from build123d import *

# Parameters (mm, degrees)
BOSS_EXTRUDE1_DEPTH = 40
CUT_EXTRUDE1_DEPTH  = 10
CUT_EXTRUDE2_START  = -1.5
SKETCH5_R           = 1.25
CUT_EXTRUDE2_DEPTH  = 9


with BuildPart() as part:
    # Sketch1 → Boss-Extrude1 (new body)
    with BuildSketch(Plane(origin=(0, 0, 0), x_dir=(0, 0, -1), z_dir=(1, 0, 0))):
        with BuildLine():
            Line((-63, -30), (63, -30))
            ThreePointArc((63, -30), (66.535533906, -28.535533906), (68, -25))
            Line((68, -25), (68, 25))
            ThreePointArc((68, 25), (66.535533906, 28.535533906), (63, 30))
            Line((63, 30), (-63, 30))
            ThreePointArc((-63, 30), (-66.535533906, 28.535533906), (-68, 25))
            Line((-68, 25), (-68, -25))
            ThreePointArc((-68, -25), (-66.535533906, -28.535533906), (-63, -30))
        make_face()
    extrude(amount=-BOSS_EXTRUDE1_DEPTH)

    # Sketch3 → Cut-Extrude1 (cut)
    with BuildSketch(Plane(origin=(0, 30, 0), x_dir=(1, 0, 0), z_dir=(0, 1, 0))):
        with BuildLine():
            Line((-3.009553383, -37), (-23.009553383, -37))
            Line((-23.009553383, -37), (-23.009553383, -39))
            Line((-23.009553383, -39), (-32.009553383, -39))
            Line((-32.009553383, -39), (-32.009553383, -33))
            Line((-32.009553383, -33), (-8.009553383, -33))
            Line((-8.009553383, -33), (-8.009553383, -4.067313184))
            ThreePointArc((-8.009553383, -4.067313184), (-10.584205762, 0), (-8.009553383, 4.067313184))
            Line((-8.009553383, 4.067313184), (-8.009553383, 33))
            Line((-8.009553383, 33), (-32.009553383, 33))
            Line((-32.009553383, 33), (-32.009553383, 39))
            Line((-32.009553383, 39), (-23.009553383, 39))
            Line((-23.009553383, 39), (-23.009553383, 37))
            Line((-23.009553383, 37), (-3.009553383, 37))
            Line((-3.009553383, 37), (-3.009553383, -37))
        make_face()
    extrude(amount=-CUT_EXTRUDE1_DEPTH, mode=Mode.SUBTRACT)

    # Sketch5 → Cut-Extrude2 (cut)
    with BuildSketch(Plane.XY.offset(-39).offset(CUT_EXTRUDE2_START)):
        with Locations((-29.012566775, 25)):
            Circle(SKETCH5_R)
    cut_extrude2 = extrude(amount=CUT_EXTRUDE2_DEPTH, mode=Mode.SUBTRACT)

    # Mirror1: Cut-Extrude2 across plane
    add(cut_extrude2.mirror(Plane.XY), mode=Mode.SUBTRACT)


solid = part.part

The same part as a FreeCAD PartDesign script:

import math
import FreeCAD as App
import Part
import Sketcher
from FreeCAD import Vector

doc = App.newDocument("Part")
params = doc.addObject("Spreadsheet::Sheet", "Params")
for row, (alias, value) in enumerate([
    ("sketch1_radius", "5 mm"),
    ("sketch1_width", "50 mm"),
    ("sketch1_height", "126 mm"),
    ("pad1_length", "40 mm"),
    ("sketch2_radius", "4.5 mm"),
    ("sketch2_width", "20 mm"),
    ("sketch2_width2", "9 mm"),
    ("sketch2_width3", "24 mm"),
    ("sketch2_height", "74 mm"),
    ("pocket1_length", "10 mm"),
    ("sketch3_diameter", "2.5 mm"),
    ("pocket2_length", "9 mm"),
], start=1):
    params.set(f"A{row}", alias)
    params.set(f"B{row}", "=" + value)
    params.setAlias(f"B{row}", alias)

body = doc.addObject("PartDesign::Body", "Body")

# Sketch on YZ plane
sketch1 = body.newObject("Sketcher::SketchObject", "Sketch")
sketch1.AttachmentSupport = (doc.getObject("YZ_Plane"), [""])
sketch1.MapMode = "FlatFace"
sketch1.addGeometry(Part.LineSegment(Vector(-30, 63, 0), Vector(-30, -63, 0)), False)
sketch1.addGeometry(Part.ArcOfCircle(Part.Circle(Vector(-25, -63, 0), Vector(0, 0, 1), 5), math.radians(180), math.radians(270)), False)
sketch1.addGeometry(Part.LineSegment(Vector(-25, -68, 0), Vector(25, -68, 0)), False)
sketch1.addGeometry(Part.ArcOfCircle(Part.Circle(Vector(25, -63, 0), Vector(0, 0, 1), 5), math.radians(-90), math.radians(0)), False)
sketch1.addGeometry(Part.LineSegment(Vector(30, -63, 0), Vector(30, 63, 0)), False)
sketch1.addGeometry(Part.ArcOfCircle(Part.Circle(Vector(25, 63, 0), Vector(0, 0, 1), 5), math.radians(0), math.radians(90)), False)
sketch1.addGeometry(Part.LineSegment(Vector(25, 68, 0), Vector(-25, 68, 0)), False)
sketch1.addGeometry(Part.ArcOfCircle(Part.Circle(Vector(-25, 63, 0), Vector(0, 0, 1), 5), math.radians(90), math.radians(180)), False)
sketch1.addConstraint(Sketcher.Constraint("Tangent", 0, 2, 1, 1))
sketch1.addConstraint(Sketcher.Constraint("Tangent", 1, 2, 2, 1))
sketch1.addConstraint(Sketcher.Constraint("Tangent", 2, 2, 3, 1))
sketch1.addConstraint(Sketcher.Constraint("Tangent", 3, 2, 4, 1))
sketch1.addConstraint(Sketcher.Constraint("Tangent", 4, 2, 5, 1))
sketch1.addConstraint(Sketcher.Constraint("Tangent", 5, 2, 6, 1))
sketch1.addConstraint(Sketcher.Constraint("Tangent", 6, 2, 7, 1))
sketch1.addConstraint(Sketcher.Constraint("Tangent", 7, 2, 0, 1))
sketch1.addConstraint(Sketcher.Constraint("Vertical", 0))
sketch1.addConstraint(Sketcher.Constraint("Horizontal", 2))
sketch1.addConstraint(Sketcher.Constraint("Vertical", 4))
sketch1.addConstraint(Sketcher.Constraint("Horizontal", 6))
sketch1.addConstraint(Sketcher.Constraint("Equal", 1, 3))
sketch1.addConstraint(Sketcher.Constraint("Equal", 3, 5))
sketch1.addConstraint(Sketcher.Constraint("Equal", 5, 7))
sketch1.addConstraint(Sketcher.Constraint("Symmetric", 1, 3, 5, 3, -1, 1))
sketch1.addConstraint(Sketcher.Constraint("Radius", 1, 5.0))
sketch1.addConstraint(Sketcher.Constraint("DistanceX", 2, 1, 2, 2, 50.0))
sketch1.addConstraint(Sketcher.Constraint("DistanceY", 0, 2, 0, 1, 126.0))
sketch1.setExpression("Constraints[16]", "Params.sketch1_radius")
sketch1.setExpression("Constraints[17]", "Params.sketch1_width")
sketch1.setExpression("Constraints[18]", "Params.sketch1_height")
pad1 = body.newObject("PartDesign::Pad", "Pad")
pad1.Profile = sketch1
pad1.setExpression("Length", "Params.pad1_length")
pad1.Reversed = True

# Sketch on XZ plane
sketch2 = body.newObject("Sketcher::SketchObject", "Sketch001")
sketch2.AttachmentSupport = (doc.getObject("XZ_Plane"), [""])
sketch2.MapMode = "FlatFace"
sketch2.AttachmentOffset = App.Placement(Vector(0, 0, -30), App.Rotation())
sketch2.addGeometry(Part.LineSegment(Vector(-23.009553, 37, 0), Vector(-3.009553, 37, 0)), False)
sketch2.addGeometry(Part.LineSegment(Vector(-3.009553, 37, 0), Vector(-3.009553, -37, 0)), False)
sketch2.addGeometry(Part.LineSegment(Vector(-3.009553, -37, 0), Vector(-23.009553, -37, 0)), False)
sketch2.addGeometry(Part.LineSegment(Vector(-23.009553, -37, 0), Vector(-23.009553, -39, 0)), False)
sketch2.addGeometry(Part.LineSegment(Vector(-23.009553, -39, 0), Vector(-32.009553, -39, 0)), False)
sketch2.addGeometry(Part.LineSegment(Vector(-32.009553, -39, 0), Vector(-32.009553, -33, 0)), False)
sketch2.addGeometry(Part.LineSegment(Vector(-32.009553, -33, 0), Vector(-8.009553, -33, 0)), False)
sketch2.addGeometry(Part.LineSegment(Vector(-8.009553, -33, 0), Vector(-8.009553, -4.067313, 0)), False)
sketch2.addGeometry(Part.ArcOfCircle(Part.Circle(Vector(-6.084206, 0, 0), Vector(0, 0, 1), 4.5), math.radians(115.331512), math.radians(244.668488)), False)
sketch2.addGeometry(Part.LineSegment(Vector(-8.009553, 4.067313, 0), Vector(-8.009553, 33, 0)), False)
sketch2.addGeometry(Part.LineSegment(Vector(-8.009553, 33, 0), Vector(-32.009553, 33, 0)), False)
sketch2.addGeometry(Part.LineSegment(Vector(-32.009553, 33, 0), Vector(-32.009553, 39, 0)), False)
sketch2.addGeometry(Part.LineSegment(Vector(-32.009553, 39, 0), Vector(-23.009553, 39, 0)), False)
sketch2.addGeometry(Part.LineSegment(Vector(-23.009553, 39, 0), Vector(-23.009553, 37, 0)), False)
sketch2.addConstraint(Sketcher.Constraint("Coincident", 0, 2, 1, 1))
sketch2.addConstraint(Sketcher.Constraint("Coincident", 1, 2, 2, 1))
sketch2.addConstraint(Sketcher.Constraint("Coincident", 2, 2, 3, 1))
sketch2.addConstraint(Sketcher.Constraint("Coincident", 3, 2, 4, 1))
sketch2.addConstraint(Sketcher.Constraint("Coincident", 4, 2, 5, 1))
sketch2.addConstraint(Sketcher.Constraint("Coincident", 5, 2, 6, 1))
sketch2.addConstraint(Sketcher.Constraint("Coincident", 6, 2, 7, 1))
sketch2.addConstraint(Sketcher.Constraint("Coincident", 7, 2, 8, 2))
sketch2.addConstraint(Sketcher.Constraint("Coincident", 8, 1, 9, 1))
sketch2.addConstraint(Sketcher.Constraint("Coincident", 9, 2, 10, 1))
sketch2.addConstraint(Sketcher.Constraint("Coincident", 10, 2, 11, 1))
sketch2.addConstraint(Sketcher.Constraint("Coincident", 11, 2, 12, 1))
sketch2.addConstraint(Sketcher.Constraint("Coincident", 12, 2, 13, 1))
sketch2.addConstraint(Sketcher.Constraint("Coincident", 13, 2, 0, 1))
sketch2.addConstraint(Sketcher.Constraint("Horizontal", 0))
sketch2.addConstraint(Sketcher.Constraint("Vertical", 1))
sketch2.addConstraint(Sketcher.Constraint("Horizontal", 2))
sketch2.addConstraint(Sketcher.Constraint("Vertical", 3))
sketch2.addConstraint(Sketcher.Constraint("Horizontal", 4))
sketch2.addConstraint(Sketcher.Constraint("Vertical", 5))
sketch2.addConstraint(Sketcher.Constraint("Horizontal", 6))
sketch2.addConstraint(Sketcher.Constraint("Vertical", 7))
sketch2.addConstraint(Sketcher.Constraint("Vertical", 9))
sketch2.addConstraint(Sketcher.Constraint("Horizontal", 10))
sketch2.addConstraint(Sketcher.Constraint("Vertical", 11))
sketch2.addConstraint(Sketcher.Constraint("Horizontal", 12))
sketch2.addConstraint(Sketcher.Constraint("Vertical", 13))
sketch2.addConstraint(Sketcher.Constraint("Symmetric", 7, 2, 8, 1, -1))
sketch2.addConstraint(Sketcher.Constraint("Symmetric", 5, 2, 10, 2, -1))
sketch2.addConstraint(Sketcher.Constraint("Symmetric", 3, 2, 12, 2, -1))
sketch2.addConstraint(Sketcher.Constraint("Equal", 3, 13))
sketch2.addConstraint(Sketcher.Constraint("Radius", 8, 4.5))
sketch2.addConstraint(Sketcher.Constraint("DistanceX", 0, 1, 0, 2, 20.0))
sketch2.addConstraint(Sketcher.Constraint("DistanceX", 4, 2, 4, 1, 9.0))
sketch2.addConstraint(Sketcher.Constraint("DistanceX", 6, 1, 6, 2, 24.0))
sketch2.addConstraint(Sketcher.Constraint("DistanceY", 1, 2, 1, 1, 74.0))
sketch2.addConstraint(Sketcher.Constraint("DistanceY", 3, 2, 3, 1, 2.0))
sketch2.addConstraint(Sketcher.Constraint("DistanceY", 5, 1, 5, 2, 6.0))
sketch2.addConstraint(Sketcher.Constraint("DistanceY", 7, 1, 7, 2, 28.932687))
sketch2.addConstraint(Sketcher.Constraint("DistanceX", 8, 3, -1, 1, 6.084206))
sketch2.setExpression("Constraints[31]", "Params.sketch2_radius")
sketch2.setExpression("Constraints[32]", "Params.sketch2_width")
sketch2.setExpression("Constraints[33]", "Params.sketch2_width2")
sketch2.setExpression("Constraints[34]", "Params.sketch2_width3")
sketch2.setExpression("Constraints[35]", "Params.sketch2_height")
pocket1 = body.newObject("PartDesign::Pocket", "Pocket")
pocket1.Profile = sketch2
pocket1.setExpression("Length", "Params.pocket1_length")
pocket1.Reversed = True

# Sketch on XY plane
sketch3 = body.newObject("Sketcher::SketchObject", "Sketch002")
sketch3.AttachmentSupport = (doc.getObject("XY_Plane"), [""])
sketch3.MapMode = "FlatFace"
sketch3.AttachmentOffset = App.Placement(Vector(0, 0, -40.5), App.Rotation())
sketch3.addGeometry(Part.Circle(Vector(-29.012567, 25, 0), Vector(0, 0, 1), 1.25), False)
sketch3.addConstraint(Sketcher.Constraint("Diameter", 0, 2.5))
sketch3.addConstraint(Sketcher.Constraint("DistanceY", -1, 1, 0, 3, 25.0))
sketch3.addConstraint(Sketcher.Constraint("DistanceX", 0, 3, -1, 1, 29.012567))
sketch3.setExpression("Constraints[0]", "Params.sketch3_diameter")
pocket2 = body.newObject("PartDesign::Pocket", "Pocket001")
pocket2.Profile = sketch3
pocket2.setExpression("Length", "Params.pocket2_length")
pocket2.Reversed = True
doc.recompute()

mirrored = body.newObject("PartDesign::Mirrored", "Mirrored")
mirrored.Originals = [pocket2]
mirrored.MirrorPlane = (doc.getObject("XY_Plane"), [""])
body.Tip = mirrored

doc.recompute()
